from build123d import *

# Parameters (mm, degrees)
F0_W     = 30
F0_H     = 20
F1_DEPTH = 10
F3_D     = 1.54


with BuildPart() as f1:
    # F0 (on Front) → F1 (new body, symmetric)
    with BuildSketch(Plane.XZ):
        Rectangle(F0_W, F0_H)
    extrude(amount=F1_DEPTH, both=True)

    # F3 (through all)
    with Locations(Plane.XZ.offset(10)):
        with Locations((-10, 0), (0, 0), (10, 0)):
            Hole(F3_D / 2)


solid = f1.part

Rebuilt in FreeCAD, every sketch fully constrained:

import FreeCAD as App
import Part
import Sketcher
from FreeCAD import Vector
Q = App.Units.Quantity

doc = App.newDocument("Part")
body = doc.addObject("PartDesign::Body", "Body")

# Sketch on XZ plane
sketch1 = doc.addObject("Sketcher::SketchObject", "Sketch")
body.addObject(sketch1)
sketch1.AttachmentSupport = (doc.XZ_Plane, [""])
sketch1.MapMode = "FlatFace"
sketch1.addGeometry(Part.LineSegment(Vector(-15, 10, 0), Vector(-15, -10, 0)), False)
sketch1.addGeometry(Part.LineSegment(Vector(-15, -10, 0), Vector(15, -10, 0)), False)
sketch1.addGeometry(Part.LineSegment(Vector(15, -10, 0), Vector(15, 10, 0)), False)
sketch1.addGeometry(Part.LineSegment(Vector(15, 10, 0), Vector(-15, 10, 0)), False)
sketch1.addConstraint(Sketcher.Constraint("Coincident", 0, 2, 1, 1))
sketch1.addConstraint(Sketcher.Constraint("Coincident", 1, 2, 2, 1))
sketch1.addConstraint(Sketcher.Constraint("Coincident", 2, 2, 3, 1))
sketch1.addConstraint(Sketcher.Constraint("Coincident", 3, 2, 0, 1))
sketch1.addConstraint(Sketcher.Constraint("Vertical", 0))
sketch1.addConstraint(Sketcher.Constraint("Horizontal", 1))
sketch1.addConstraint(Sketcher.Constraint("Vertical", 2))
sketch1.addConstraint(Sketcher.Constraint("Horizontal", 3))
sketch1.addConstraint(Sketcher.Constraint("Symmetric", 0, 2, 2, 2, -1, 1))
sketch1.addConstraint(Sketcher.Constraint("DistanceX", 1, 1, 1, 2, Q("30 mm")))
sketch1.addConstraint(Sketcher.Constraint("DistanceY", 0, 2, 0, 1, Q("20 mm")))
pad1 = doc.addObject("PartDesign::Pad", "Pad")
body.addObject(pad1)
pad1.Profile = sketch1
pad1.Length = 20
pad1.Midplane = True

# Sketch on XZ plane
sketch2 = doc.addObject("Sketcher::SketchObject", "Sketch001")
body.addObject(sketch2)
sketch2.AttachmentSupport = (doc.XZ_Plane, [""])
sketch2.MapMode = "FlatFace"
sketch2.AttachmentOffset = App.Placement(Vector(0, 0, 10), App.Rotation())
sketch2.addGeometry(Part.Circle(Vector(-10, 0, 0), Vector(0, 0, 1), 0.77), False)
sketch2.addGeometry(Part.Circle(Vector(0, 0, 0), Vector(0, 0, 1), 0.77), False)
sketch2.addGeometry(Part.Circle(Vector(10, 0, 0), Vector(0, 0, 1), 0.77), False)
sketch2.addConstraint(Sketcher.Constraint("Coincident", 1, 3, -1, 1))
sketch2.addConstraint(Sketcher.Constraint("Equal", 0, 1))
sketch2.addConstraint(Sketcher.Constraint("Equal", 1, 2))
sketch2.addConstraint(Sketcher.Constraint("Symmetric", 0, 3, 2, 3, -1, 1))
sketch2.addConstraint(Sketcher.Constraint("PointOnObject", 0, 3, -1))
sketch2.addConstraint(Sketcher.Constraint("Diameter", 0, Q("1.54 mm")))
sketch2.addConstraint(Sketcher.Constraint("DistanceX", 0, 3, -1, 1, Q("10 mm")))
doc.recompute()
hole = doc.addObject("PartDesign::Hole", "Hole")
body.addObject(hole)
hole.Profile = sketch2
hole.ThreadType = "None"
hole.Diameter = 1.54
hole.DepthType = "ThroughAll"

doc.recompute()
